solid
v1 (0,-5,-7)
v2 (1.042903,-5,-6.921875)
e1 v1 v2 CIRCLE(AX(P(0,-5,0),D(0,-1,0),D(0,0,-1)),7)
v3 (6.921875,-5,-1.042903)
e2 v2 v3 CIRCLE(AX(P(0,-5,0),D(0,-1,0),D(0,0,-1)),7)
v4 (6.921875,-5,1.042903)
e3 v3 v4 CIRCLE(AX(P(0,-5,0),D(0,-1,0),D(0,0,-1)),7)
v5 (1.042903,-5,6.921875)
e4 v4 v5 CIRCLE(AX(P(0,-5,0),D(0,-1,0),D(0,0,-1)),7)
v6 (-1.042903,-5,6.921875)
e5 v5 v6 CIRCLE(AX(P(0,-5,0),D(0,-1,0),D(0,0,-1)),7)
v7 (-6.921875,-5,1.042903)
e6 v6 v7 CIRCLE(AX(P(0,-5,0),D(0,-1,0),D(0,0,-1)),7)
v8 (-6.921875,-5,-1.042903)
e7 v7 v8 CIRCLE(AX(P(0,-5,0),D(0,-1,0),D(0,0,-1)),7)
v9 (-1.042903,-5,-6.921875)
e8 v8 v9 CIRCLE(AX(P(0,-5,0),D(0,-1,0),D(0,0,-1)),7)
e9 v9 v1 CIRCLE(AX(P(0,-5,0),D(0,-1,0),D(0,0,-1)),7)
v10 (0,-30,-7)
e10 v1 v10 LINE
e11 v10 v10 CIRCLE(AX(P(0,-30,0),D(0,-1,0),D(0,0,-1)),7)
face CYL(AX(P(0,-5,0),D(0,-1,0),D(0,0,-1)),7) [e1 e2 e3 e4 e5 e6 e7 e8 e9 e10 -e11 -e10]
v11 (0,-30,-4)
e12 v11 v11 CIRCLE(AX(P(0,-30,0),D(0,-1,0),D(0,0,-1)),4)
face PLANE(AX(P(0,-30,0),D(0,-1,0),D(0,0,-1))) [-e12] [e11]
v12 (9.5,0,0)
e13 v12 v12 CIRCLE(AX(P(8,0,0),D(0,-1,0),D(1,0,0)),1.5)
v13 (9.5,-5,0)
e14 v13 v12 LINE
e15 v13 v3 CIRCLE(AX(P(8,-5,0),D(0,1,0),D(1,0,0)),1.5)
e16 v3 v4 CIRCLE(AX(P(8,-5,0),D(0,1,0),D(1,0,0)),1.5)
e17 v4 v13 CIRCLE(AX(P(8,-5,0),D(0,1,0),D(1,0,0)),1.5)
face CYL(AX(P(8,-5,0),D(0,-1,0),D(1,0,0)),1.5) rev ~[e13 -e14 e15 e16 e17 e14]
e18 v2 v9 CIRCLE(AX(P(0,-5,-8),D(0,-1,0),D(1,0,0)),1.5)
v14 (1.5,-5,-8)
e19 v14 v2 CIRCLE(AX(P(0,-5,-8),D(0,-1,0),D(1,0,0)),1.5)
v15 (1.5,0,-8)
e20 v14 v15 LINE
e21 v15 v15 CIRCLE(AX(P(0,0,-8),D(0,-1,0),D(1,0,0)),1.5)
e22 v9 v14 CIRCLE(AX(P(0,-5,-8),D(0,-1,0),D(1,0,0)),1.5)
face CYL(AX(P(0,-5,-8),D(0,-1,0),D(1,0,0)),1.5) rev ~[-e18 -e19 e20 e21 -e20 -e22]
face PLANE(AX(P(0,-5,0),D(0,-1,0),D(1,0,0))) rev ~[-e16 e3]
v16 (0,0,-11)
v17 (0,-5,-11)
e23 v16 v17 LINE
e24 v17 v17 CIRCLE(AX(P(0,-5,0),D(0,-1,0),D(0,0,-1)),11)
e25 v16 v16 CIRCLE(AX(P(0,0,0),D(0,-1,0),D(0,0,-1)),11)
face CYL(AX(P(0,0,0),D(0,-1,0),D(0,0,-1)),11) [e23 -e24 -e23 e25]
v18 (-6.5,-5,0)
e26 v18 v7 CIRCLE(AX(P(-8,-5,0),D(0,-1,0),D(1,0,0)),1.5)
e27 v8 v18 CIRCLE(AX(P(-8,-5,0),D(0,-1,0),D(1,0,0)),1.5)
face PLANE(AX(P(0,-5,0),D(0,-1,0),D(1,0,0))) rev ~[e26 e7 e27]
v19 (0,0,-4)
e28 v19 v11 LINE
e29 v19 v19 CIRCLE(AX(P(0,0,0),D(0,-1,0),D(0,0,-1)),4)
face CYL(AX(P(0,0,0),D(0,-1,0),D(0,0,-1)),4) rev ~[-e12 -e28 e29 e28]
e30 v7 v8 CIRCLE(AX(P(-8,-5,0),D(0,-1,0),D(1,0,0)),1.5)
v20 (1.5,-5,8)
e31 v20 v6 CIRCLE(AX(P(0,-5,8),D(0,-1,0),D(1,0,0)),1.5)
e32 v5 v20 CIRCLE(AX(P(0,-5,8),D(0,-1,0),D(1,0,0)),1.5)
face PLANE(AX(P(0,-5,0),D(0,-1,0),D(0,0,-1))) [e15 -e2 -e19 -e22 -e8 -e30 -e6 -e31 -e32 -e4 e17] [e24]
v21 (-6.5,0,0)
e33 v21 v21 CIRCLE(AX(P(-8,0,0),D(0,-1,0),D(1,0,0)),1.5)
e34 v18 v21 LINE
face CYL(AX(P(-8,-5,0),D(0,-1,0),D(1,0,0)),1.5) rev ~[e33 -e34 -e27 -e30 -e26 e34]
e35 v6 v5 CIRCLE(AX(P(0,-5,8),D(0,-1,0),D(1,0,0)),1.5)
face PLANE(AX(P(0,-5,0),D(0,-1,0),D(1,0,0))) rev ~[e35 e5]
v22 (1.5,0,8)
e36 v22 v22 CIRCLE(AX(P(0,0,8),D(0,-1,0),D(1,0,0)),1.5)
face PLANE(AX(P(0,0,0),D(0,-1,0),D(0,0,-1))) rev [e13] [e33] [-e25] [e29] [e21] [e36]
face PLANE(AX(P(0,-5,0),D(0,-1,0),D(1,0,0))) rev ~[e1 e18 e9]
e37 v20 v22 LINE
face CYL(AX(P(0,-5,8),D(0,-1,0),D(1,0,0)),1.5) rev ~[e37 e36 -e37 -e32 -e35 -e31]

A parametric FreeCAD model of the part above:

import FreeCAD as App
import Part
import Sketcher

V = App.Vector

doc = App.newDocument("Part")
params = doc.addObject("Spreadsheet::Sheet", "Params")
for row, (alias, value) in enumerate([
    ("sketch1_width", "25 mm"),
    ("sketch1_width2", "5 mm"),
    ("sketch1_height", "4 mm"),
    ("revolution_angle", "360 deg"),
    ("sketch2_diameter", "3 mm"),
    ("pocket1_length", "25.4 mm"),
], start=1):
    params.set(f"A{row}", alias)
    params.set(f"B{row}", "=" + value)
    params.setAlias(f"B{row}", alias)

body = doc.addObject("PartDesign::Body", "Body")

sketch1 = body.newObject("Sketcher::SketchObject", "Sketch")
sketch1.AttachmentSupport = (doc.getObject("YZ_Plane"), [""])
sketch1.MapMode = "FlatFace"
sketch1.addGeometry([
    Part.LineSegment(V(0, -11, 0), V(0, -4, 0)),
    Part.LineSegment(V(0, -4, 0), V(-30, -4, 0)),
    Part.LineSegment(V(-30, -4, 0), V(-30, -7, 0)),
    Part.LineSegment(V(-30, -7, 0), V(-5, -7, 0)),
    Part.LineSegment(V(-5, -7, 0), V(-5, -11, 0)),
    Part.LineSegment(V(-5, -11, 0), V(0, -11, 0)),
], False)
sketch1.addConstraint([
    Sketcher.Constraint("Coincident", 0, 2, 1, 1),
    Sketcher.Constraint("Coincident", 1, 2, 2, 1),
    Sketcher.Constraint("Coincident", 2, 2, 3, 1),
    Sketcher.Constraint("Coincident", 3, 2, 4, 1),
    Sketcher.Constraint("Coincident", 4, 2, 5, 1),
    Sketcher.Constraint("Coincident", 5, 2, 0, 1),
    Sketcher.Constraint("Vertical", 0),
    Sketcher.Constraint("Horizontal", 1),
    Sketcher.Constraint("Vertical", 2),
    Sketcher.Constraint("Horizontal", 3),
    Sketcher.Constraint("Vertical", 4),
    Sketcher.Constraint("Horizontal", 5),
    Sketcher.Constraint("PointOnObject", 0, 2, -2),
    Sketcher.Constraint("DistanceX", 3, 1, 3, 2, 25.0),
    Sketcher.Constraint("DistanceX", 5, 1, 5, 2, 5.0),
    Sketcher.Constraint("DistanceY", 4, 2, 4, 1, 4.0),
    Sketcher.Constraint("DistanceY", 0, 2, -1, 1, 4.0),
    Sketcher.Constraint("DistanceY", 4, 2, -1, 1, 11.0),
])
sketch1.setExpression("Constraints[13]", "Params.sketch1_width")
sketch1.setExpression("Constraints[14]", "Params.sketch1_width2")
sketch1.setExpression("Constraints[15]", "Params.sketch1_height")
revolution = body.newObject("PartDesign::Revolution", "Revolution")
revolution.Profile = sketch1
revolution.ReferenceAxis = (sketch1, ["H_Axis"])
revolution.setExpression("Angle", "Params.revolution_angle")

sketch2 = body.newObject("Sketcher::SketchObject", "Sketch001")
sketch2.AttachmentSupport = (doc.getObject("XZ_Plane"), [""])
sketch2.MapMode = "FlatFace"
sketch2.AttachmentOffset = App.Placement(V(0, 0, 5), App.Rotation())
sketch2.addGeometry([
    Part.Circle(V(8, 0, 0), V(0, 0, 1), 1.5),
    Part.Circle(V(0, 8, 0), V(0, 0, 1), 1.5),
    Part.Circle(V(-8, 0, 0), V(0, 0, 1), 1.5),
    Part.Circle(V(0, -8, 0), V(0, 0, 1), 1.5),
], False)
sketch2.addConstraint([
    Sketcher.Constraint("Equal", 0, 1),
    Sketcher.Constraint("Equal", 1, 2),
    Sketcher.Constraint("Equal", 2, 3),
    Sketcher.Constraint("Symmetric", 0, 3, 2, 3, -1, 1),
    Sketcher.Constraint("Symmetric", 1, 3, 3, 3, -1, 1),
    Sketcher.Constraint("PointOnObject", 0, 3, -1),
    Sketcher.Constraint("PointOnObject", 1, 3, -2),
    Sketcher.Constraint("Diameter", 0, 3.0),
    Sketcher.Constraint("DistanceX", -1, 1, 0, 3, 8.0),
    Sketcher.Constraint("DistanceY", -1, 1, 1, 3, 8.0),
])
sketch2.setExpression("Constraints[7]", "Params.sketch2_diameter")
pocket1 = body.newObject("PartDesign::Pocket", "Pocket")
pocket1.Profile = sketch2
pocket1.setExpression("Length", "Params.pocket1_length")

doc.recompute()
